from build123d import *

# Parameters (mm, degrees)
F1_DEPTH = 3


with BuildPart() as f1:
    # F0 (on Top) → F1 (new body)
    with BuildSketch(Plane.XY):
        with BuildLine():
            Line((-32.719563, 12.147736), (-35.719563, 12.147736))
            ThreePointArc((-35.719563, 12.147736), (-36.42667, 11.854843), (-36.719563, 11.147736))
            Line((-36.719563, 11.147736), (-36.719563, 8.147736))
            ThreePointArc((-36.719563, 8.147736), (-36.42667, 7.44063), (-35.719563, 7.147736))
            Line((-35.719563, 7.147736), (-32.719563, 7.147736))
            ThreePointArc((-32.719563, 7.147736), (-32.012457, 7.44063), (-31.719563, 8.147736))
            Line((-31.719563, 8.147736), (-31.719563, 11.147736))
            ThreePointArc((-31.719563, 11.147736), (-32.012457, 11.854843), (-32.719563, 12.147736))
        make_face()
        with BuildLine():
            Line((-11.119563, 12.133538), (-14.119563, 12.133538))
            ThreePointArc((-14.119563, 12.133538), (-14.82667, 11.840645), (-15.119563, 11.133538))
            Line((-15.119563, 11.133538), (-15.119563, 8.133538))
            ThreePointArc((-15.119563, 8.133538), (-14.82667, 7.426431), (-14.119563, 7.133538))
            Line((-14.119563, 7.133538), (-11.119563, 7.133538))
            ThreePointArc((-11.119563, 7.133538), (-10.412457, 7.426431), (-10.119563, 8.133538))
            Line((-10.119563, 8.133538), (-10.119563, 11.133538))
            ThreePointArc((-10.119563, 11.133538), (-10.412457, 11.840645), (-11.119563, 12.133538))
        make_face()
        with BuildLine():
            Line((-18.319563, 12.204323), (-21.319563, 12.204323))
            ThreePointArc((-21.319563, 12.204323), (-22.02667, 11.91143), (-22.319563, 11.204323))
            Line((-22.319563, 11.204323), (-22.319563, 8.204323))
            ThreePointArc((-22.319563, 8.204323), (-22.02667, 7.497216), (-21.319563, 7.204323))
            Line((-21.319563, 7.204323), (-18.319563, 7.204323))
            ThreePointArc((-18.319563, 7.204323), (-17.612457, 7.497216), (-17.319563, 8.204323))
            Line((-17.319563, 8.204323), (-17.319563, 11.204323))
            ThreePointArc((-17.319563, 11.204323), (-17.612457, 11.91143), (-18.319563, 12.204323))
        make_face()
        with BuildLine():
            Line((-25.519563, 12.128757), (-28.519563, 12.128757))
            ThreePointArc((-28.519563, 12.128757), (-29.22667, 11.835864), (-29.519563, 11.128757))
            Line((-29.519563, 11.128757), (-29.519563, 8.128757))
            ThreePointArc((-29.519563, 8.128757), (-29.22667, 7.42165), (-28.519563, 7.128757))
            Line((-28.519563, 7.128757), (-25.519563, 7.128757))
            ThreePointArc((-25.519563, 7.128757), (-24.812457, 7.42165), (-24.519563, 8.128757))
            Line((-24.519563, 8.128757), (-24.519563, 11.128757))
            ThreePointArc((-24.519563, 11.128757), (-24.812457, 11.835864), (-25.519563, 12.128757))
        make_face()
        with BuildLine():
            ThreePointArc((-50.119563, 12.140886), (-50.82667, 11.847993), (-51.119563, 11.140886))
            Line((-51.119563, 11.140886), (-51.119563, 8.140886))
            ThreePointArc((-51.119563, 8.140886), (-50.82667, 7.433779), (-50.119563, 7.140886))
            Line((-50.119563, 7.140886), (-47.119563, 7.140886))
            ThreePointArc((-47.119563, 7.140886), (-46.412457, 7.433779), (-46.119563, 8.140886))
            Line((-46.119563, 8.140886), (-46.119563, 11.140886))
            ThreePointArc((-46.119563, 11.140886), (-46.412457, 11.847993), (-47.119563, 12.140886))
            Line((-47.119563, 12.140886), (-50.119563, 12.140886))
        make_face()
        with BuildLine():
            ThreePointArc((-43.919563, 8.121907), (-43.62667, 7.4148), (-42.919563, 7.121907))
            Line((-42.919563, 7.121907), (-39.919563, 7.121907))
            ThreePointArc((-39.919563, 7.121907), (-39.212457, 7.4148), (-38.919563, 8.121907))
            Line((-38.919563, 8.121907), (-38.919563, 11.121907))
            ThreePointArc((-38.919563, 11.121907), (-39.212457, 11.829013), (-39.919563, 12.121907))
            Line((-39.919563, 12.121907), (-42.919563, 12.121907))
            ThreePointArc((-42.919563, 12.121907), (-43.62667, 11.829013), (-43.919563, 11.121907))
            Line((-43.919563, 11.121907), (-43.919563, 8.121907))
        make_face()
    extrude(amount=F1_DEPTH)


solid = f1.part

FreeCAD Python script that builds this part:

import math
import FreeCAD as App
import Part
import Sketcher
Q = App.Units.Quantity

doc = App.newDocument("Part")
body = doc.addObject("PartDesign::Body", "Body")
body.AllowCompound = True

# Sketch on XY plane
sketch1 = body.newObject("Sketcher::SketchObject", "Sketch")
sketch1.AttachmentSupport = (doc.getObject("XY_Plane"), [""])
sketch1.MapMode = "FlatFace"
sketch1.addGeometry([
    Part.LineSegment(App.Vector(-32.7, 12.1, 0), App.Vector(-35.7, 12.1, 0)),  # 0
    Part.ArcOfCircle(Part.Circle(App.Vector(-35.7, 11.1, 0), App.Vector(0, 0, 1), 1), math.radians(90), math.radians(180)),  # 1
    Part.LineSegment(App.Vector(-36.7, 11.1, 0), App.Vector(-36.7, 8.1, 0)),  # 2
    Part.ArcOfCircle(Part.Circle(App.Vector(-35.7, 8.1, 0), App.Vector(0, 0, 1), 1), math.radians(-180), math.radians(-90)),  # 3
    Part.LineSegment(App.Vector(-35.7, 7.1, 0), App.Vector(-32.7, 7.1, 0)),  # 4
    Part.ArcOfCircle(Part.Circle(App.Vector(-32.7, 8.1, 0), App.Vector(0, 0, 1), 1), math.radians(-90), math.radians(0)),  # 5
    Part.LineSegment(App.Vector(-31.7, 8.1, 0), App.Vector(-31.7, 11.1, 0)),  # 6
    Part.ArcOfCircle(Part.Circle(App.Vector(-32.7, 11.1, 0), App.Vector(0, 0, 1), 1), math.radians(0), math.radians(90)),  # 7
    Part.LineSegment(App.Vector(-11.1, 12.1, 0), App.Vector(-14.1, 12.1, 0)),  # 8
    Part.ArcOfCircle(Part.Circle(App.Vector(-14.1, 11.1, 0), App.Vector(0, 0, 1), 1), math.radians(90), math.radians(180)),  # 9
    Part.LineSegment(App.Vector(-15.1, 11.1, 0), App.Vector(-15.1, 8.1, 0)),  # 10
    Part.ArcOfCircle(Part.Circle(App.Vector(-14.1, 8.1, 0), App.Vector(0, 0, 1), 1), math.radians(180), math.radians(270)),  # 11
    Part.LineSegment(App.Vector(-14.1, 7.1, 0), App.Vector(-11.1, 7.1, 0)),  # 12
    Part.ArcOfCircle(Part.Circle(App.Vector(-11.1, 8.1, 0), App.Vector(0, 0, 1), 1), math.radians(-90), math.radians(0)),  # 13
    Part.LineSegment(App.Vector(-10.1, 8.1, 0), App.Vector(-10.1, 11.1, 0)),  # 14
    Part.ArcOfCircle(Part.Circle(App.Vector(-11.1, 11.1, 0), App.Vector(0, 0, 1), 1), math.radians(0), math.radians(90)),  # 15
    Part.LineSegment(App.Vector(-18.3, 12.2, 0), App.Vector(-21.3, 12.2, 0)),  # 16
    Part.ArcOfCircle(Part.Circle(App.Vector(-21.3, 11.2, 0), App.Vector(0, 0, 1), 1), math.radians(90), math.radians(180)),  # 17
    Part.LineSegment(App.Vector(-22.3, 11.2, 0), App.Vector(-22.3, 8.2, 0)),  # 18
    Part.ArcOfCircle(Part.Circle(App.Vector(-21.3, 8.2, 0), App.Vector(0, 0, 1), 1), math.radians(180), math.radians(270)),  # 19
    Part.LineSegment(App.Vector(-21.3, 7.2, 0), App.Vector(-18.3, 7.2, 0)),  # 20
    Part.ArcOfCircle(Part.Circle(App.Vector(-18.3, 8.2, 0), App.Vector(0, 0, 1), 1), math.radians(-90), math.radians(0)),  # 21
    Part.LineSegment(App.Vector(-17.3, 8.2, 0), App.Vector(-17.3, 11.2, 0)),  # 22
    Part.ArcOfCircle(Part.Circle(App.Vector(-18.3, 11.2, 0), App.Vector(0, 0, 1), 1), math.radians(0), math.radians(90)),  # 23
    Part.LineSegment(App.Vector(-25.5, 12.1, 0), App.Vector(-28.5, 12.1, 0)),  # 24
    Part.ArcOfCircle(Part.Circle(App.Vector(-28.5, 11.1, 0), App.Vector(0, 0, 1), 1), math.radians(90), math.radians(180)),  # 25
    Part.LineSegment(App.Vector(-29.5, 11.1, 0), App.Vector(-29.5, 8.1, 0)),  # 26
    Part.ArcOfCircle(Part.Circle(App.Vector(-28.5, 8.1, 0), App.Vector(0, 0, 1), 1), math.radians(180), math.radians(270)),  # 27
    Part.LineSegment(App.Vector(-28.5, 7.1, 0), App.Vector(-25.5, 7.1, 0)),  # 28
    Part.ArcOfCircle(Part.Circle(App.Vector(-25.5, 8.1, 0), App.Vector(0, 0, 1), 1), math.radians(-90), math.radians(0)),  # 29
    Part.LineSegment(App.Vector(-24.5, 8.1, 0), App.Vector(-24.5, 11.1, 0)),  # 30
    Part.ArcOfCircle(Part.Circle(App.Vector(-25.5, 11.1, 0), App.Vector(0, 0, 1), 1), math.radians(0), math.radians(90)),  # 31
    Part.ArcOfCircle(Part.Circle(App.Vector(-50.1, 11.1, 0), App.Vector(0, 0, 1), 1), math.radians(90), math.radians(180)),  # 32
    Part.LineSegment(App.Vector(-51.1, 11.1, 0), App.Vector(-51.1, 8.1, 0)),  # 33
    Part.ArcOfCircle(Part.Circle(App.Vector(-50.1, 8.1, 0), App.Vector(0, 0, 1), 1), math.radians(180), math.radians(270)),  # 34
    Part.LineSegment(App.Vector(-50.1, 7.1, 0), App.Vector(-47.1, 7.1, 0)),  # 35
    Part.ArcOfCircle(Part.Circle(App.Vector(-47.1, 8.1, 0), App.Vector(0, 0, 1), 1), math.radians(-90), math.radians(0)),  # 36
    Part.LineSegment(App.Vector(-46.1, 8.1, 0), App.Vector(-46.1, 11.1, 0)),  # 37
    Part.ArcOfCircle(Part.Circle(App.Vector(-47.1, 11.1, 0), App.Vector(0, 0, 1), 1), math.radians(0), math.radians(90)),  # 38
    Part.LineSegment(App.Vector(-47.1, 12.1, 0), App.Vector(-50.1, 12.1, 0)),  # 39
    Part.ArcOfCircle(Part.Circle(App.Vector(-42.9, 8.1, 0), App.Vector(0, 0, 1), 1), math.radians(180), math.radians(270)),  # 40
    Part.LineSegment(App.Vector(-42.9, 7.1, 0), App.Vector(-39.9, 7.1, 0)),  # 41
    Part.ArcOfCircle(Part.Circle(App.Vector(-39.9, 8.1, 0), App.Vector(0, 0, 1), 1), math.radians(-90), math.radians(0)),  # 42
    Part.LineSegment(App.Vector(-38.9, 8.1, 0), App.Vector(-38.9, 11.1, 0)),  # 43
    Part.ArcOfCircle(Part.Circle(App.Vector(-39.9, 11.1, 0), App.Vector(0, 0, 1), 1), math.radians(0), math.radians(90)),  # 44
    Part.LineSegment(App.Vector(-39.9, 12.1, 0), App.Vector(-42.9, 12.1, 0)),  # 45
    Part.ArcOfCircle(Part.Circle(App.Vector(-42.9, 11.1, 0), App.Vector(0, 0, 1), 1), math.radians(90), math.radians(180)),  # 46
    Part.LineSegment(App.Vector(-43.9, 11.1, 0), App.Vector(-43.9, 8.1, 0)),  # 47
], False)
sketch1.addConstraint([
    Sketcher.Constraint("Tangent", 0, 2, 1, 1),
    Sketcher.Constraint("Tangent", 1, 2, 2, 1),
    Sketcher.Constraint("Tangent", 2, 2, 3, 1),
    Sketcher.Constraint("Tangent", 3, 2, 4, 1),
    Sketcher.Constraint("Coincident", 4, 2, 5, 1),
    Sketcher.Constraint("Coincident", 5, 2, 6, 1),
    Sketcher.Constraint("Tangent", 6, 2, 7, 1),
    Sketcher.Constraint("Tangent", 7, 2, 0, 1),
    Sketcher.Constraint("Tangent", 8, 2, 9, 1),
    Sketcher.Constraint("Tangent", 9, 2, 10, 1),
    Sketcher.Constraint("Tangent", 10, 2, 11, 1),
    Sketcher.Constraint("Tangent", 11, 2, 12, 1),
    Sketcher.Constraint("Tangent", 12, 2, 13, 1),
    Sketcher.Constraint("Tangent", 13, 2, 14, 1),
    Sketcher.Constraint("Tangent", 14, 2, 15, 1),
    Sketcher.Constraint("Tangent", 15, 2, 8, 1),
    Sketcher.Constraint("Tangent", 16, 2, 17, 1),
    Sketcher.Constraint("Tangent", 17, 2, 18, 1),
    Sketcher.Constraint("Tangent", 18, 2, 19, 1),
    Sketcher.Constraint("Tangent", 19, 2, 20, 1),
    Sketcher.Constraint("Tangent", 20, 2, 21, 1),
    Sketcher.Constraint("Tangent", 21, 2, 22, 1),
    Sketcher.Constraint("Tangent", 22, 2, 23, 1),
    Sketcher.Constraint("Tangent", 23, 2, 16, 1),
    Sketcher.Constraint("Tangent", 24, 2, 25, 1),
    Sketcher.Constraint("Tangent", 25, 2, 26, 1),
    Sketcher.Constraint("Tangent", 26, 2, 27, 1),
    Sketcher.Constraint("Tangent", 27, 2, 28, 1),
    Sketcher.Constraint("Tangent", 28, 2, 29, 1),
    Sketcher.Constraint("Tangent", 29, 2, 30, 1),
    Sketcher.Constraint("Tangent", 30, 2, 31, 1),
    Sketcher.Constraint("Tangent", 31, 2, 24, 1),
    Sketcher.Constraint("Tangent", 32, 2, 33, 1),
    Sketcher.Constraint("Tangent", 33, 2, 34, 1),
    Sketcher.Constraint("Tangent", 34, 2, 35, 1),
    Sketcher.Constraint("Tangent", 35, 2, 36, 1),
    Sketcher.Constraint("Tangent", 36, 2, 37, 1),
    Sketcher.Constraint("Tangent", 37, 2, 38, 1),
    Sketcher.Constraint("Tangent", 38, 2, 39, 1),
    Sketcher.Constraint("Tangent", 39, 2, 32, 1),
    Sketcher.Constraint("Tangent", 40, 2, 41, 1),
    Sketcher.Constraint("Tangent", 41, 2, 42, 1),
    Sketcher.Constraint("Tangent", 42, 2, 43, 1),
    Sketcher.Constraint("Coincident", 43, 2, 44, 1),
    Sketcher.Constraint("Coincident", 44, 2, 45, 1),
    Sketcher.Constraint("Tangent", 45, 2, 46, 1),
    Sketcher.Constraint("Tangent", 46, 2, 47, 1),
    Sketcher.Constraint("Tangent", 47, 2, 40, 1),
    Sketcher.Constraint("Horizontal", 0),
    Sketcher.Constraint("Vertical", 2),
    Sketcher.Constraint("Horizontal", 4),
    Sketcher.Constraint("Vertical", 6),
    Sketcher.Constraint("Horizontal", 8),
    Sketcher.Constraint("Vertical", 10),
    Sketcher.Constraint("Horizontal", 12),
    Sketcher.Constraint("Vertical", 14),
    Sketcher.Constraint("Horizontal", 16),
    Sketcher.Constraint("Vertical", 18),
    Sketcher.Constraint("Horizontal", 20),
    Sketcher.Constraint("Vertical", 22),
    Sketcher.Constraint("Horizontal", 24),
    Sketcher.Constraint("Vertical", 26),
    Sketcher.Constraint("Horizontal", 28),
    Sketcher.Constraint("Vertical", 30),
    Sketcher.Constraint("Vertical", 33),
    Sketcher.Constraint("Horizontal", 35),
    Sketcher.Constraint("Vertical", 37),
    Sketcher.Constraint("Horizontal", 39),
    Sketcher.Constraint("Horizontal", 41),
    Sketcher.Constraint("Vertical", 43),
    Sketcher.Constraint("Horizontal", 45),
    Sketcher.Constraint("Vertical", 47),
    Sketcher.Constraint("Equal", 1, 3),
    Sketcher.Constraint("Equal", 3, 5),
    Sketcher.Constraint("Equal", 5, 7),
    Sketcher.Constraint("Equal", 7, 9),
    Sketcher.Constraint("Equal", 9, 11),
    Sketcher.Constraint("Equal", 11, 13),
    Sketcher.Constraint("Equal", 13, 15),
    Sketcher.Constraint("Equal", 15, 17),
    Sketcher.Constraint("Equal", 17, 19),
    Sketcher.Constraint("Equal", 19, 21),
    Sketcher.Constraint("Equal", 21, 23),
    Sketcher.Constraint("Equal", 23, 25),
    Sketcher.Constraint("Equal", 25, 27),
    Sketcher.Constraint("Equal", 27, 29),
    Sketcher.Constraint("Equal", 29, 31),
    Sketcher.Constraint("Equal", 31, 32),
    Sketcher.Constraint("Equal", 32, 34),
    Sketcher.Constraint("Equal", 34, 36),
    Sketcher.Constraint("Equal", 36, 38),
    Sketcher.Constraint("Equal", 38, 40),
    Sketcher.Constraint("Equal", 40, 42),
    Sketcher.Constraint("Equal", 42, 44),
    Sketcher.Constraint("Equal", 44, 46),
    Sketcher.Constraint("Horizontal", 2, 2, 5, 2),
    Sketcher.Constraint("Horizontal", 46, 3, 43, 2),
    Sketcher.Constraint("Vertical", 7, 3, 4, 2),
    Sketcher.Constraint("Vertical", 41, 2, 44, 2),
    Sketcher.Constraint("Equal", 4, 8),
    Sketcher.Constraint("Equal", 12, 16),
    Sketcher.Constraint("Equal", 20, 24),
    Sketcher.Constraint("Equal", 28, 35),
    Sketcher.Constraint("Equal", 39, 41),
    Sketcher.Constraint("Equal", 45, 2),
    Sketcher.Constraint("Equal", 6, 10),
    Sketcher.Constraint("Equal", 14, 18),
    Sketcher.Constraint("Equal", 22, 26),
    Sketcher.Constraint("Equal", 30, 33),
    Sketcher.Constraint("Equal", 37, 43),
    Sketcher.Constraint("Radius", 1, Q("0.999999 mm")),
    Sketcher.Constraint("DistanceX", 0, 2, 0, 1, Q("3 mm")),
    Sketcher.Constraint("DistanceY", -1, 1, 5, 3, Q("8.147739 mm")),
    Sketcher.Constraint("DistanceY", -1, 1, 9, 3, Q("11.133539 mm")),
    Sketcher.Constraint("DistanceX", 1, 3, -1, 1, Q("35.719564 mm")),
    Sketcher.Constraint("DistanceX", 9, 3, -1, 1, Q("14.119564 mm")),
    Sketcher.Constraint("DistanceX", 17, 3, -1, 1, Q("21.319564 mm")),
    Sketcher.Constraint("DistanceY", -1, 1, 17, 3, Q("11.204324 mm")),
    Sketcher.Constraint("DistanceX", 25, 3, -1, 1, Q("28.519564 mm")),
    Sketcher.Constraint("DistanceY", -1, 1, 25, 3, Q("11.128758 mm")),
    Sketcher.Constraint("DistanceX", 32, 3, -1, 1, Q("50.119564 mm")),
    Sketcher.Constraint("DistanceY", -1, 1, 32, 3, Q("11.140887 mm")),
    Sketcher.Constraint("DistanceX", 40, 3, -1, 1, Q("42.919564 mm")),
    Sketcher.Constraint("DistanceY", -1, 1, 40, 3, Q("8.121906 mm")),
])
pad1 = body.newObject("PartDesign::Pad", "Pad")
pad1.Profile = sketch1
pad1.Length = 3

doc.recompute()
